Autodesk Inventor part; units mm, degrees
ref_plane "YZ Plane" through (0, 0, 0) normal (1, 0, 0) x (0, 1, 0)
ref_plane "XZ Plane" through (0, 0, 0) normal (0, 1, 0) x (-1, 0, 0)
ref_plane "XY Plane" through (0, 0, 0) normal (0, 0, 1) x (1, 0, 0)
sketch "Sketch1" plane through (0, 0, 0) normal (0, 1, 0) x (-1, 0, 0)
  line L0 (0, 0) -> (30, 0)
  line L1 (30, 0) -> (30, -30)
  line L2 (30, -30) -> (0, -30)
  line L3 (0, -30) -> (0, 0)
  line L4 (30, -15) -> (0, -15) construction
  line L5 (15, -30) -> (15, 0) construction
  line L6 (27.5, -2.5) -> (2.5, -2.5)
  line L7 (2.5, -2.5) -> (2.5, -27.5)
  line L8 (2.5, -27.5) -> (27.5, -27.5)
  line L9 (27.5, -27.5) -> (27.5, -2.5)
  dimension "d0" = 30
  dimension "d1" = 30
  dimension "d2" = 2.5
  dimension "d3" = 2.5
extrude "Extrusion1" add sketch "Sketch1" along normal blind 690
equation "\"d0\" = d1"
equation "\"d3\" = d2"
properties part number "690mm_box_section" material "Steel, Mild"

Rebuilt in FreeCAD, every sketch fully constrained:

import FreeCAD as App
import Part
import Sketcher


def add_polygon(sketch, points):
    """Adds a closed chain of lines whose ends are joined by coincident constraints."""
    first, n = sketch.GeometryCount, len(points)
    for a, b in zip(points, points[1:] + points[:1]):
        sketch.addGeometry(Part.LineSegment(App.Vector(*a, 0), App.Vector(*b, 0)), False)
    for i in range(n):
        sketch.addConstraint(Sketcher.Constraint("Coincident", first + i, 2, first + (i + 1) % n, 1))

doc = App.newDocument("Part")
params = doc.addObject("Spreadsheet::Sheet", "Params")
for row, (alias, value) in enumerate([
    ("sketch1_width", "30 mm"),
    ("pad1_length", "690 mm"),
], start=1):
    params.set(f"A{row}", alias)
    params.set(f"B{row}", "=" + value)
    params.setAlias(f"B{row}", alias)

body = doc.addObject("PartDesign::Body", "Body")

# Sketch on XZ plane
sketch1 = body.newObject("Sketcher::SketchObject", "Sketch")
sketch1.AttachmentSupport = (doc.getObject("XZ_Plane"), [""])
sketch1.MapMode = "FlatFace"
add_polygon(sketch1, [(-30, 0), (0, 0), (0, -30), (-30, -30)])  # lines 0-3
add_polygon(sketch1, [(-2, -2), (-28, -2), (-28, -28), (-2, -28)])  # lines 4-7
sketch1.addConstraint([
    Sketcher.Constraint("Horizontal", 0),
    Sketcher.Constraint("Vertical", 1),
    Sketcher.Constraint("Horizontal", 2),
    Sketcher.Constraint("Vertical", 3),
    Sketcher.Constraint("Horizontal", 4),
    Sketcher.Constraint("Vertical", 5),
    Sketcher.Constraint("Horizontal", 6),
    Sketcher.Constraint("Vertical", 7),
    Sketcher.Constraint("Coincident", 0, 2, -1, 1),
    Sketcher.Constraint("Equal", 2, 1),
    Sketcher.Constraint("Equal", 6, 5),
    Sketcher.Constraint("DistanceX", 0, 1, 0, 2, 30.0),
    Sketcher.Constraint("DistanceY", 4, 2, -1, 1, 2.5),
    Sketcher.Constraint("DistanceX", 6, 2, -1, 1, 2.5),
    Sketcher.Constraint("DistanceX", 3, 2, 4, 2, 2.5),
])
sketch1.setExpression("Constraints[19]", "Params.sketch1_width")
pad1 = body.newObject("PartDesign::Pad", "Pad")
pad1.Profile = sketch1
pad1.setExpression("Length", "Params.pad1_length")
pad1.Reversed = True

doc.recompute()
